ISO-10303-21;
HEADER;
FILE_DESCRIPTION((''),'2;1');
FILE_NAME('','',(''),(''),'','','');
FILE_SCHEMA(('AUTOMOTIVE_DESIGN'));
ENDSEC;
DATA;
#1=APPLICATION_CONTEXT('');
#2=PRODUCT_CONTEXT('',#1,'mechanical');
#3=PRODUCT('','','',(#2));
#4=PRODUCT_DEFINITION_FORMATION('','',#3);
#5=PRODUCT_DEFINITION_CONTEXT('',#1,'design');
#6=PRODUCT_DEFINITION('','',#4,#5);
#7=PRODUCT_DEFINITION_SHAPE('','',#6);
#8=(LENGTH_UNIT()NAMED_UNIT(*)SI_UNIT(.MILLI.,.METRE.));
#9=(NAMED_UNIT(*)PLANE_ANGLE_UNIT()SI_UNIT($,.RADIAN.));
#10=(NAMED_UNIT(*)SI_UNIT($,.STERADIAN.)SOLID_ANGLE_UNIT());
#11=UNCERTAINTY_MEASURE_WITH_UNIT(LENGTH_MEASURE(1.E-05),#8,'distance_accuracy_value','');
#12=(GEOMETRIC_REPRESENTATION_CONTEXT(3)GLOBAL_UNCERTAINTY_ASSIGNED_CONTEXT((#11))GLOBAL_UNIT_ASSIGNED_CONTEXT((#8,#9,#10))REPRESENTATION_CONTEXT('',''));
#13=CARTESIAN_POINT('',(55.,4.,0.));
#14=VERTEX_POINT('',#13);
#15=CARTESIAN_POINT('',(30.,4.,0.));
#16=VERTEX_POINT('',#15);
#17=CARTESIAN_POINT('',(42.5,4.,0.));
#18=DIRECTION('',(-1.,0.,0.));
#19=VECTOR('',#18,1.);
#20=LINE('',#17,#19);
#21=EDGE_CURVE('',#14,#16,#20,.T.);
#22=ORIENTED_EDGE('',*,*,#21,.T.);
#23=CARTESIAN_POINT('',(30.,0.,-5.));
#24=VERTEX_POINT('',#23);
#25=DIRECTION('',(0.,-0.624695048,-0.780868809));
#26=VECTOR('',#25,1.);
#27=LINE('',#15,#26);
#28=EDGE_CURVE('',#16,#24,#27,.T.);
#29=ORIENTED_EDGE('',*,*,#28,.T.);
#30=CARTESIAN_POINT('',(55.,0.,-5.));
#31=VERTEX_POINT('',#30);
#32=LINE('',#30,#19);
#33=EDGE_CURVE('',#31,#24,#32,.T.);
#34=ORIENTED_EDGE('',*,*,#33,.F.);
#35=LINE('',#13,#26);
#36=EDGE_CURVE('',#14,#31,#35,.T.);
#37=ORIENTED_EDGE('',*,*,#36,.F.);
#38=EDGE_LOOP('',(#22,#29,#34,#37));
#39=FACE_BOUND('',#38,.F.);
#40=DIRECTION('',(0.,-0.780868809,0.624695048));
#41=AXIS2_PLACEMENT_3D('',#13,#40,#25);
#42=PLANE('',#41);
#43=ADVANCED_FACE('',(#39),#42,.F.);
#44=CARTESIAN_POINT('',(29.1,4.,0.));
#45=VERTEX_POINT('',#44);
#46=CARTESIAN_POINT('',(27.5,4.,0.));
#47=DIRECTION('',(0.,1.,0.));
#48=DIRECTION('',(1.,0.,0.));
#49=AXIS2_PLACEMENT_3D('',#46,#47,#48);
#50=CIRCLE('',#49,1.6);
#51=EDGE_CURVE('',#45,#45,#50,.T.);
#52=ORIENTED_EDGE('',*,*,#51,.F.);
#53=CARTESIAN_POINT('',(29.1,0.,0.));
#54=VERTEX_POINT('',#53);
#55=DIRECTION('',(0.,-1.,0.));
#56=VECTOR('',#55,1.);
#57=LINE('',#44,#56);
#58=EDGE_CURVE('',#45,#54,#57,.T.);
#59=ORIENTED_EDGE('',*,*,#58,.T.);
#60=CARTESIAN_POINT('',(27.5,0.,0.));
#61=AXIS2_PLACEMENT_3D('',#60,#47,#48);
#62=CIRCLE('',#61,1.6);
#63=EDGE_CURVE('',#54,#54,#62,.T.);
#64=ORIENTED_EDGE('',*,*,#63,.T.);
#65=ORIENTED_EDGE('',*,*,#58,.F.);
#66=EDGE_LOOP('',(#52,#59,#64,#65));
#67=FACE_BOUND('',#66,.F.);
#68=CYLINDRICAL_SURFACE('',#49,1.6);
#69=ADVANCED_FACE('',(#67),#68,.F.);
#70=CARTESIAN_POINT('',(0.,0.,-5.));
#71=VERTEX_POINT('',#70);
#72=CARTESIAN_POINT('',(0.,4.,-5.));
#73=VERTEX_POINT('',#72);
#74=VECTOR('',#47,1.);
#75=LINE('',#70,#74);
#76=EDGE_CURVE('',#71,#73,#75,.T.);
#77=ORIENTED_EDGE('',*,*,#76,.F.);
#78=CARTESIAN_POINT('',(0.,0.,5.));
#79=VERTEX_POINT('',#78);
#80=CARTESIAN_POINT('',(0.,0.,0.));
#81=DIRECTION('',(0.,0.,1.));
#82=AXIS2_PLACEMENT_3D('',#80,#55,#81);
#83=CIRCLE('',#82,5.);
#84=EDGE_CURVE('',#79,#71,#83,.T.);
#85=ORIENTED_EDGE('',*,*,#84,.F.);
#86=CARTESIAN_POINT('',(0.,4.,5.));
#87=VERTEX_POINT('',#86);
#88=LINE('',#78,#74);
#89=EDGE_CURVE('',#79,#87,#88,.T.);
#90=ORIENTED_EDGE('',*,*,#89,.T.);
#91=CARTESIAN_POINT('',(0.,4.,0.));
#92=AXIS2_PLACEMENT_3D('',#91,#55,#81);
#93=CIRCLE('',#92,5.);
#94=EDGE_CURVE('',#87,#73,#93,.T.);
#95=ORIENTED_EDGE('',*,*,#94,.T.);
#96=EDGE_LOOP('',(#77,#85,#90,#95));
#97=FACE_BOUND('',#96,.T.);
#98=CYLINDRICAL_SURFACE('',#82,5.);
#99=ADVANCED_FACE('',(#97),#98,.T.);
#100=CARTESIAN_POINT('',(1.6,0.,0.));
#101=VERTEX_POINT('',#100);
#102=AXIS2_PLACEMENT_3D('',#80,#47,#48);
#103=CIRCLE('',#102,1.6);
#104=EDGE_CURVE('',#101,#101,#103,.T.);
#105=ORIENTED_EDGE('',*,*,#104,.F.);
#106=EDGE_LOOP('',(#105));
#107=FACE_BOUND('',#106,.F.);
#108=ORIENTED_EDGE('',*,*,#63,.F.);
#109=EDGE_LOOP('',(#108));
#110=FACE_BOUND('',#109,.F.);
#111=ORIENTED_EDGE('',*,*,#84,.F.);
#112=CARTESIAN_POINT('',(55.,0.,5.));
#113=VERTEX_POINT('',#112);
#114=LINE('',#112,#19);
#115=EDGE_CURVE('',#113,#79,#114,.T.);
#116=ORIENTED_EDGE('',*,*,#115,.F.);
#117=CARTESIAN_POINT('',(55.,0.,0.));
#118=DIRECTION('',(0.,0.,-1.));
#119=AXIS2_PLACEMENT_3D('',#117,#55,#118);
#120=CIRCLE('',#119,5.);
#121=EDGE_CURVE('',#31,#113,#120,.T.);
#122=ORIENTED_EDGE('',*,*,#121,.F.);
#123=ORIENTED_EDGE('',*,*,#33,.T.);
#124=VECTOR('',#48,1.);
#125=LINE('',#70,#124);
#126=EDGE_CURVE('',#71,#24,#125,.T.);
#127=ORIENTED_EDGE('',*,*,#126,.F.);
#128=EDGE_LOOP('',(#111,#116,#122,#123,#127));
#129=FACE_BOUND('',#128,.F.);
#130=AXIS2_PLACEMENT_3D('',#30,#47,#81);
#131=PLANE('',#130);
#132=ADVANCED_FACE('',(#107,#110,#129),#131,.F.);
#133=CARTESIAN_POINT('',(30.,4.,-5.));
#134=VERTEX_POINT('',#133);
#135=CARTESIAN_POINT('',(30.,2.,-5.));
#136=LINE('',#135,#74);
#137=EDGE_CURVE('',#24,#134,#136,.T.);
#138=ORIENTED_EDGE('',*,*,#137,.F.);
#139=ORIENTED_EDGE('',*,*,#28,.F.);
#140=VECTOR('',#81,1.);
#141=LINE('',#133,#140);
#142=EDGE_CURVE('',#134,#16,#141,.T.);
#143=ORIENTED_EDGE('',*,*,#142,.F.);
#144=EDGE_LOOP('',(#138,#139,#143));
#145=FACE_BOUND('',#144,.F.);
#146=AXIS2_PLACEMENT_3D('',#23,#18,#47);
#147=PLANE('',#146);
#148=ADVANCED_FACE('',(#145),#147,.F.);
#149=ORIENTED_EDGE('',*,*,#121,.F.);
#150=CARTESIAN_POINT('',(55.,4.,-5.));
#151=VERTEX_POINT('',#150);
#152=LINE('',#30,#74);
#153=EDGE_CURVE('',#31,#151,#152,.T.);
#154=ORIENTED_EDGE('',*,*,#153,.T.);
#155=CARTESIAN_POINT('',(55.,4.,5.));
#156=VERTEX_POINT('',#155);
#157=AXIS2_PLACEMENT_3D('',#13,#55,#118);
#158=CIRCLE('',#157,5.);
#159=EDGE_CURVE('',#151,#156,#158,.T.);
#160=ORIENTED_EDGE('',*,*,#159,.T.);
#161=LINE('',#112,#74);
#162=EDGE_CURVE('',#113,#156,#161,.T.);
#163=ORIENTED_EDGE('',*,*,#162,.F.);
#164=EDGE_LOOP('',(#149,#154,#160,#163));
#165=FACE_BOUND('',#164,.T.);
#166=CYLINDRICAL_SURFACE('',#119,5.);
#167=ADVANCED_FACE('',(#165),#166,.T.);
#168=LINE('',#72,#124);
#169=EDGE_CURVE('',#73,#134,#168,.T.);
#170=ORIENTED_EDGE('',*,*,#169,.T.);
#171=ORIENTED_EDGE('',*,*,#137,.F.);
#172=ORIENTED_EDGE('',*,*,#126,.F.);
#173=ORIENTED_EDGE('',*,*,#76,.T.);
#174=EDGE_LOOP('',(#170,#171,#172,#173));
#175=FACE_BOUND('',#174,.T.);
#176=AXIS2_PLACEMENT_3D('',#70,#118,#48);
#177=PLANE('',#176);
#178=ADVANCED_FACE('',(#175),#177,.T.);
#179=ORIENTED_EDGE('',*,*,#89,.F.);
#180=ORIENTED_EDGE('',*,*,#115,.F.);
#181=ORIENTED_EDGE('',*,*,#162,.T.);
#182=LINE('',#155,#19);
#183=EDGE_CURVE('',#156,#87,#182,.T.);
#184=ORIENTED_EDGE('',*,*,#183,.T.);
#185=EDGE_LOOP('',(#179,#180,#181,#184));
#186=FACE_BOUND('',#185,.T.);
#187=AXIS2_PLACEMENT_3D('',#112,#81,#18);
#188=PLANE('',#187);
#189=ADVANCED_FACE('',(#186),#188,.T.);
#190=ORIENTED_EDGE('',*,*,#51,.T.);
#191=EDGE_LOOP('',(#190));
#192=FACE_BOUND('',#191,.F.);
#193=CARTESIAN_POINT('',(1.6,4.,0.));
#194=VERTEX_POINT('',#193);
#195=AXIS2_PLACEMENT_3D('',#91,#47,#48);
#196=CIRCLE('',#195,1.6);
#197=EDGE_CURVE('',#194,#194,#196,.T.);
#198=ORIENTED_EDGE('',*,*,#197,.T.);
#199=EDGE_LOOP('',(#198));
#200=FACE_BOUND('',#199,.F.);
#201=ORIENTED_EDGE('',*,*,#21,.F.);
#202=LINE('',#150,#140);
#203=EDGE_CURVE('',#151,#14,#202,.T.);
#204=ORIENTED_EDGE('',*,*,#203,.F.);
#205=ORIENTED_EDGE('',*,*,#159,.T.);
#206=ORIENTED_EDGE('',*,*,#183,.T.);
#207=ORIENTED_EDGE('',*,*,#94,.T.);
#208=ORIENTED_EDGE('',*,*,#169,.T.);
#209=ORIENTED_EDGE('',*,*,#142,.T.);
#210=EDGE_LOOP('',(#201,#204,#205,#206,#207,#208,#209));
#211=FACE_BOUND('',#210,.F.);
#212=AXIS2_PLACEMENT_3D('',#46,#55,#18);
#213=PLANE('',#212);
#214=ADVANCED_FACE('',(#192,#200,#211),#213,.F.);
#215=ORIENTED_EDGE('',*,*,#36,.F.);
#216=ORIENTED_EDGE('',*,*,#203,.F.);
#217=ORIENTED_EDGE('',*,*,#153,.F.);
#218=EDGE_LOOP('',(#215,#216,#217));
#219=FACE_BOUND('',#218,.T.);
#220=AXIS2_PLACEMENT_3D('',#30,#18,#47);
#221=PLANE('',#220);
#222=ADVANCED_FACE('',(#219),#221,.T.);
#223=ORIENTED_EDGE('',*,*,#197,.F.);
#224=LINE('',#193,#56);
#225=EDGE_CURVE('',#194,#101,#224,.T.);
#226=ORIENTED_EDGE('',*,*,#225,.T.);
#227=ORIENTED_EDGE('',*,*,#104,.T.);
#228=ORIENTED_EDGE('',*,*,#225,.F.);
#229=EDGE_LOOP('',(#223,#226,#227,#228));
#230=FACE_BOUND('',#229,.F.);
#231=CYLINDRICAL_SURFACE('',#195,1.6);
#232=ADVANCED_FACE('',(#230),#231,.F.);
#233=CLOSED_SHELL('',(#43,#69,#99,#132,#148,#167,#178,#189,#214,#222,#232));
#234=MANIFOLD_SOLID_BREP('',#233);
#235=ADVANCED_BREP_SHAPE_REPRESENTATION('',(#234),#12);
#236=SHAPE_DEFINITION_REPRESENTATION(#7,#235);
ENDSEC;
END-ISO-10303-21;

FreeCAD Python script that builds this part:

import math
import FreeCAD as App
import Part
import Sketcher

V = App.Vector


def add_polygon(sketch, points):
    """Adds a closed chain of lines whose ends are joined by coincident constraints."""
    first, n = sketch.GeometryCount, len(points)
    for a, b in zip(points, points[1:] + points[:1]):
        sketch.addGeometry(Part.LineSegment(App.Vector(*a, 0), App.Vector(*b, 0)), False)
    for i in range(n):
        sketch.addConstraint(Sketcher.Constraint("Coincident", first + i, 2, first + (i + 1) % n, 1))

doc = App.newDocument("Part")
body = doc.addObject("PartDesign::Body", "Body")

sketch1 = doc.addObject("Sketcher::SketchObject", "Sketch")
body.addObject(sketch1)
sketch1.AttachmentSupport = (doc.XZ_Plane, [""])
sketch1.MapMode = "FlatFace"
sketch1.addGeometry(Part.LineSegment(V(55, -5, 0), V(0, -5, 0)), False)
sketch1.addGeometry(Part.ArcOfCircle(Part.Circle(V(0, 0, 0), V(0, 0, 1), 5), math.radians(90), math.radians(270)), False)
sketch1.addGeometry(Part.LineSegment(V(0, 5, 0), V(55, 5, 0)), False)
sketch1.addGeometry(Part.ArcOfCircle(Part.Circle(V(55, 0, 0), V(0, 0, 1), 5), math.radians(-90), math.radians(90)), False)
sketch1.addConstraint(Sketcher.Constraint("Tangent", 0, 2, 1, 2))
sketch1.addConstraint(Sketcher.Constraint("Tangent", 1, 1, 2, 1))
sketch1.addConstraint(Sketcher.Constraint("Tangent", 2, 2, 3, 2))
sketch1.addConstraint(Sketcher.Constraint("Tangent", 3, 1, 0, 1))
sketch1.addConstraint(Sketcher.Constraint("Horizontal", 0))
sketch1.addConstraint(Sketcher.Constraint("Horizontal", 2))
sketch1.addConstraint(Sketcher.Constraint("Coincident", 1, 3, -1, 1))
sketch1.addConstraint(Sketcher.Constraint("Radius", 1, 5.0))
sketch1.addConstraint(Sketcher.Constraint("DistanceX", 0, 2, 0, 1, 55.0))
pad1 = doc.addObject("PartDesign::Pad", "Pad")
body.addObject(pad1)
pad1.Profile = sketch1
pad1.Length = 4
pad1.Reversed = True

sketch2 = doc.addObject("Sketcher::SketchObject", "Sketch001")
body.addObject(sketch2)
sketch2.AttachmentSupport = (doc.XZ_Plane, [""])
sketch2.MapMode = "FlatFace"
sketch2.AttachmentOffset = App.Placement(V(0, 0, -4), App.Rotation())
sketch2.addGeometry(Part.Circle(V(0, 0, 0), V(0, 0, 1), 1.6), False)
sketch2.addGeometry(Part.Circle(V(27.5, 0, 0), V(0, 0, 1), 1.6), False)
sketch2.addConstraint(Sketcher.Constraint("Coincident", 0, 3, -1, 1))
sketch2.addConstraint(Sketcher.Constraint("Equal", 0, 1))
sketch2.addConstraint(Sketcher.Constraint("PointOnObject", 1, 3, -1))
sketch2.addConstraint(Sketcher.Constraint("Diameter", 0, 3.2))
sketch2.addConstraint(Sketcher.Constraint("DistanceX", -1, 1, 1, 3, 27.5))
pocket1 = doc.addObject("PartDesign::Pocket", "Pocket")
body.addObject(pocket1)
pocket1.Profile = sketch2
pocket1.Type = "ThroughAll"
pocket1.Reversed = True

sketch3 = doc.addObject("Sketcher::SketchObject", "Sketch002")
body.addObject(sketch3)
sketch3.AttachmentSupport = (doc.XY_Plane, [""])
sketch3.MapMode = "FlatFace"
sketch3.AttachmentOffset = App.Placement(V(0, 0, -5), App.Rotation())
add_polygon(sketch3, [(55, 4), (55, 0), (30, 0), (30, 4)])
sketch3.addConstraint(Sketcher.Constraint("Vertical", 0))
sketch3.addConstraint(Sketcher.Constraint("Horizontal", 1))
sketch3.addConstraint(Sketcher.Constraint("Vertical", 2))
sketch3.addConstraint(Sketcher.Constraint("Horizontal", 3))
sketch3.addConstraint(Sketcher.Constraint("PointOnObject", 0, 2, -1))
sketch3.addConstraint(Sketcher.Constraint("DistanceX", 1, 2, 1, 1, 25.0))
sketch3.addConstraint(Sketcher.Constraint("DistanceY", 0, 2, 0, 1, 4.0))
sketch3.addConstraint(Sketcher.Constraint("DistanceX", -1, 1, 0, 2, 55.0))
pocket2 = doc.addObject("PartDesign::Pocket", "Pocket001")
body.addObject(pocket2)
pocket2.Profile = sketch3
pocket2.Length = 5
pocket2.Reversed = True

sketch4 = doc.addObject("Sketcher::SketchObject", "Sketch003")
body.addObject(sketch4)
sketch4.AttachmentSupport = (doc.YZ_Plane, [""])
sketch4.MapMode = "FlatFace"
sketch4.AttachmentOffset = App.Placement(V(0, 0, 55), App.Rotation())
add_polygon(sketch4, [(4, 0), (0, -5), (0, 0)])
sketch4.addConstraint(Sketcher.Constraint("Vertical", 1))
sketch4.addConstraint(Sketcher.Constraint("Horizontal", 2))
sketch4.addConstraint(Sketcher.Constraint("Coincident", 1, 2, -1, 1))
sketch4.addConstraint(Sketcher.Constraint("DistanceX", 2, 1, 2, 2, 4.0))
sketch4.addConstraint(Sketcher.Constraint("DistanceY", 1, 1, 1, 2, 5.0))
pad2 = doc.addObject("PartDesign::Pad", "Pad001")
body.addObject(pad2)
pad2.Profile = sketch4
pad2.Length = 25
pad2.Reversed = True

doc.recompute()
